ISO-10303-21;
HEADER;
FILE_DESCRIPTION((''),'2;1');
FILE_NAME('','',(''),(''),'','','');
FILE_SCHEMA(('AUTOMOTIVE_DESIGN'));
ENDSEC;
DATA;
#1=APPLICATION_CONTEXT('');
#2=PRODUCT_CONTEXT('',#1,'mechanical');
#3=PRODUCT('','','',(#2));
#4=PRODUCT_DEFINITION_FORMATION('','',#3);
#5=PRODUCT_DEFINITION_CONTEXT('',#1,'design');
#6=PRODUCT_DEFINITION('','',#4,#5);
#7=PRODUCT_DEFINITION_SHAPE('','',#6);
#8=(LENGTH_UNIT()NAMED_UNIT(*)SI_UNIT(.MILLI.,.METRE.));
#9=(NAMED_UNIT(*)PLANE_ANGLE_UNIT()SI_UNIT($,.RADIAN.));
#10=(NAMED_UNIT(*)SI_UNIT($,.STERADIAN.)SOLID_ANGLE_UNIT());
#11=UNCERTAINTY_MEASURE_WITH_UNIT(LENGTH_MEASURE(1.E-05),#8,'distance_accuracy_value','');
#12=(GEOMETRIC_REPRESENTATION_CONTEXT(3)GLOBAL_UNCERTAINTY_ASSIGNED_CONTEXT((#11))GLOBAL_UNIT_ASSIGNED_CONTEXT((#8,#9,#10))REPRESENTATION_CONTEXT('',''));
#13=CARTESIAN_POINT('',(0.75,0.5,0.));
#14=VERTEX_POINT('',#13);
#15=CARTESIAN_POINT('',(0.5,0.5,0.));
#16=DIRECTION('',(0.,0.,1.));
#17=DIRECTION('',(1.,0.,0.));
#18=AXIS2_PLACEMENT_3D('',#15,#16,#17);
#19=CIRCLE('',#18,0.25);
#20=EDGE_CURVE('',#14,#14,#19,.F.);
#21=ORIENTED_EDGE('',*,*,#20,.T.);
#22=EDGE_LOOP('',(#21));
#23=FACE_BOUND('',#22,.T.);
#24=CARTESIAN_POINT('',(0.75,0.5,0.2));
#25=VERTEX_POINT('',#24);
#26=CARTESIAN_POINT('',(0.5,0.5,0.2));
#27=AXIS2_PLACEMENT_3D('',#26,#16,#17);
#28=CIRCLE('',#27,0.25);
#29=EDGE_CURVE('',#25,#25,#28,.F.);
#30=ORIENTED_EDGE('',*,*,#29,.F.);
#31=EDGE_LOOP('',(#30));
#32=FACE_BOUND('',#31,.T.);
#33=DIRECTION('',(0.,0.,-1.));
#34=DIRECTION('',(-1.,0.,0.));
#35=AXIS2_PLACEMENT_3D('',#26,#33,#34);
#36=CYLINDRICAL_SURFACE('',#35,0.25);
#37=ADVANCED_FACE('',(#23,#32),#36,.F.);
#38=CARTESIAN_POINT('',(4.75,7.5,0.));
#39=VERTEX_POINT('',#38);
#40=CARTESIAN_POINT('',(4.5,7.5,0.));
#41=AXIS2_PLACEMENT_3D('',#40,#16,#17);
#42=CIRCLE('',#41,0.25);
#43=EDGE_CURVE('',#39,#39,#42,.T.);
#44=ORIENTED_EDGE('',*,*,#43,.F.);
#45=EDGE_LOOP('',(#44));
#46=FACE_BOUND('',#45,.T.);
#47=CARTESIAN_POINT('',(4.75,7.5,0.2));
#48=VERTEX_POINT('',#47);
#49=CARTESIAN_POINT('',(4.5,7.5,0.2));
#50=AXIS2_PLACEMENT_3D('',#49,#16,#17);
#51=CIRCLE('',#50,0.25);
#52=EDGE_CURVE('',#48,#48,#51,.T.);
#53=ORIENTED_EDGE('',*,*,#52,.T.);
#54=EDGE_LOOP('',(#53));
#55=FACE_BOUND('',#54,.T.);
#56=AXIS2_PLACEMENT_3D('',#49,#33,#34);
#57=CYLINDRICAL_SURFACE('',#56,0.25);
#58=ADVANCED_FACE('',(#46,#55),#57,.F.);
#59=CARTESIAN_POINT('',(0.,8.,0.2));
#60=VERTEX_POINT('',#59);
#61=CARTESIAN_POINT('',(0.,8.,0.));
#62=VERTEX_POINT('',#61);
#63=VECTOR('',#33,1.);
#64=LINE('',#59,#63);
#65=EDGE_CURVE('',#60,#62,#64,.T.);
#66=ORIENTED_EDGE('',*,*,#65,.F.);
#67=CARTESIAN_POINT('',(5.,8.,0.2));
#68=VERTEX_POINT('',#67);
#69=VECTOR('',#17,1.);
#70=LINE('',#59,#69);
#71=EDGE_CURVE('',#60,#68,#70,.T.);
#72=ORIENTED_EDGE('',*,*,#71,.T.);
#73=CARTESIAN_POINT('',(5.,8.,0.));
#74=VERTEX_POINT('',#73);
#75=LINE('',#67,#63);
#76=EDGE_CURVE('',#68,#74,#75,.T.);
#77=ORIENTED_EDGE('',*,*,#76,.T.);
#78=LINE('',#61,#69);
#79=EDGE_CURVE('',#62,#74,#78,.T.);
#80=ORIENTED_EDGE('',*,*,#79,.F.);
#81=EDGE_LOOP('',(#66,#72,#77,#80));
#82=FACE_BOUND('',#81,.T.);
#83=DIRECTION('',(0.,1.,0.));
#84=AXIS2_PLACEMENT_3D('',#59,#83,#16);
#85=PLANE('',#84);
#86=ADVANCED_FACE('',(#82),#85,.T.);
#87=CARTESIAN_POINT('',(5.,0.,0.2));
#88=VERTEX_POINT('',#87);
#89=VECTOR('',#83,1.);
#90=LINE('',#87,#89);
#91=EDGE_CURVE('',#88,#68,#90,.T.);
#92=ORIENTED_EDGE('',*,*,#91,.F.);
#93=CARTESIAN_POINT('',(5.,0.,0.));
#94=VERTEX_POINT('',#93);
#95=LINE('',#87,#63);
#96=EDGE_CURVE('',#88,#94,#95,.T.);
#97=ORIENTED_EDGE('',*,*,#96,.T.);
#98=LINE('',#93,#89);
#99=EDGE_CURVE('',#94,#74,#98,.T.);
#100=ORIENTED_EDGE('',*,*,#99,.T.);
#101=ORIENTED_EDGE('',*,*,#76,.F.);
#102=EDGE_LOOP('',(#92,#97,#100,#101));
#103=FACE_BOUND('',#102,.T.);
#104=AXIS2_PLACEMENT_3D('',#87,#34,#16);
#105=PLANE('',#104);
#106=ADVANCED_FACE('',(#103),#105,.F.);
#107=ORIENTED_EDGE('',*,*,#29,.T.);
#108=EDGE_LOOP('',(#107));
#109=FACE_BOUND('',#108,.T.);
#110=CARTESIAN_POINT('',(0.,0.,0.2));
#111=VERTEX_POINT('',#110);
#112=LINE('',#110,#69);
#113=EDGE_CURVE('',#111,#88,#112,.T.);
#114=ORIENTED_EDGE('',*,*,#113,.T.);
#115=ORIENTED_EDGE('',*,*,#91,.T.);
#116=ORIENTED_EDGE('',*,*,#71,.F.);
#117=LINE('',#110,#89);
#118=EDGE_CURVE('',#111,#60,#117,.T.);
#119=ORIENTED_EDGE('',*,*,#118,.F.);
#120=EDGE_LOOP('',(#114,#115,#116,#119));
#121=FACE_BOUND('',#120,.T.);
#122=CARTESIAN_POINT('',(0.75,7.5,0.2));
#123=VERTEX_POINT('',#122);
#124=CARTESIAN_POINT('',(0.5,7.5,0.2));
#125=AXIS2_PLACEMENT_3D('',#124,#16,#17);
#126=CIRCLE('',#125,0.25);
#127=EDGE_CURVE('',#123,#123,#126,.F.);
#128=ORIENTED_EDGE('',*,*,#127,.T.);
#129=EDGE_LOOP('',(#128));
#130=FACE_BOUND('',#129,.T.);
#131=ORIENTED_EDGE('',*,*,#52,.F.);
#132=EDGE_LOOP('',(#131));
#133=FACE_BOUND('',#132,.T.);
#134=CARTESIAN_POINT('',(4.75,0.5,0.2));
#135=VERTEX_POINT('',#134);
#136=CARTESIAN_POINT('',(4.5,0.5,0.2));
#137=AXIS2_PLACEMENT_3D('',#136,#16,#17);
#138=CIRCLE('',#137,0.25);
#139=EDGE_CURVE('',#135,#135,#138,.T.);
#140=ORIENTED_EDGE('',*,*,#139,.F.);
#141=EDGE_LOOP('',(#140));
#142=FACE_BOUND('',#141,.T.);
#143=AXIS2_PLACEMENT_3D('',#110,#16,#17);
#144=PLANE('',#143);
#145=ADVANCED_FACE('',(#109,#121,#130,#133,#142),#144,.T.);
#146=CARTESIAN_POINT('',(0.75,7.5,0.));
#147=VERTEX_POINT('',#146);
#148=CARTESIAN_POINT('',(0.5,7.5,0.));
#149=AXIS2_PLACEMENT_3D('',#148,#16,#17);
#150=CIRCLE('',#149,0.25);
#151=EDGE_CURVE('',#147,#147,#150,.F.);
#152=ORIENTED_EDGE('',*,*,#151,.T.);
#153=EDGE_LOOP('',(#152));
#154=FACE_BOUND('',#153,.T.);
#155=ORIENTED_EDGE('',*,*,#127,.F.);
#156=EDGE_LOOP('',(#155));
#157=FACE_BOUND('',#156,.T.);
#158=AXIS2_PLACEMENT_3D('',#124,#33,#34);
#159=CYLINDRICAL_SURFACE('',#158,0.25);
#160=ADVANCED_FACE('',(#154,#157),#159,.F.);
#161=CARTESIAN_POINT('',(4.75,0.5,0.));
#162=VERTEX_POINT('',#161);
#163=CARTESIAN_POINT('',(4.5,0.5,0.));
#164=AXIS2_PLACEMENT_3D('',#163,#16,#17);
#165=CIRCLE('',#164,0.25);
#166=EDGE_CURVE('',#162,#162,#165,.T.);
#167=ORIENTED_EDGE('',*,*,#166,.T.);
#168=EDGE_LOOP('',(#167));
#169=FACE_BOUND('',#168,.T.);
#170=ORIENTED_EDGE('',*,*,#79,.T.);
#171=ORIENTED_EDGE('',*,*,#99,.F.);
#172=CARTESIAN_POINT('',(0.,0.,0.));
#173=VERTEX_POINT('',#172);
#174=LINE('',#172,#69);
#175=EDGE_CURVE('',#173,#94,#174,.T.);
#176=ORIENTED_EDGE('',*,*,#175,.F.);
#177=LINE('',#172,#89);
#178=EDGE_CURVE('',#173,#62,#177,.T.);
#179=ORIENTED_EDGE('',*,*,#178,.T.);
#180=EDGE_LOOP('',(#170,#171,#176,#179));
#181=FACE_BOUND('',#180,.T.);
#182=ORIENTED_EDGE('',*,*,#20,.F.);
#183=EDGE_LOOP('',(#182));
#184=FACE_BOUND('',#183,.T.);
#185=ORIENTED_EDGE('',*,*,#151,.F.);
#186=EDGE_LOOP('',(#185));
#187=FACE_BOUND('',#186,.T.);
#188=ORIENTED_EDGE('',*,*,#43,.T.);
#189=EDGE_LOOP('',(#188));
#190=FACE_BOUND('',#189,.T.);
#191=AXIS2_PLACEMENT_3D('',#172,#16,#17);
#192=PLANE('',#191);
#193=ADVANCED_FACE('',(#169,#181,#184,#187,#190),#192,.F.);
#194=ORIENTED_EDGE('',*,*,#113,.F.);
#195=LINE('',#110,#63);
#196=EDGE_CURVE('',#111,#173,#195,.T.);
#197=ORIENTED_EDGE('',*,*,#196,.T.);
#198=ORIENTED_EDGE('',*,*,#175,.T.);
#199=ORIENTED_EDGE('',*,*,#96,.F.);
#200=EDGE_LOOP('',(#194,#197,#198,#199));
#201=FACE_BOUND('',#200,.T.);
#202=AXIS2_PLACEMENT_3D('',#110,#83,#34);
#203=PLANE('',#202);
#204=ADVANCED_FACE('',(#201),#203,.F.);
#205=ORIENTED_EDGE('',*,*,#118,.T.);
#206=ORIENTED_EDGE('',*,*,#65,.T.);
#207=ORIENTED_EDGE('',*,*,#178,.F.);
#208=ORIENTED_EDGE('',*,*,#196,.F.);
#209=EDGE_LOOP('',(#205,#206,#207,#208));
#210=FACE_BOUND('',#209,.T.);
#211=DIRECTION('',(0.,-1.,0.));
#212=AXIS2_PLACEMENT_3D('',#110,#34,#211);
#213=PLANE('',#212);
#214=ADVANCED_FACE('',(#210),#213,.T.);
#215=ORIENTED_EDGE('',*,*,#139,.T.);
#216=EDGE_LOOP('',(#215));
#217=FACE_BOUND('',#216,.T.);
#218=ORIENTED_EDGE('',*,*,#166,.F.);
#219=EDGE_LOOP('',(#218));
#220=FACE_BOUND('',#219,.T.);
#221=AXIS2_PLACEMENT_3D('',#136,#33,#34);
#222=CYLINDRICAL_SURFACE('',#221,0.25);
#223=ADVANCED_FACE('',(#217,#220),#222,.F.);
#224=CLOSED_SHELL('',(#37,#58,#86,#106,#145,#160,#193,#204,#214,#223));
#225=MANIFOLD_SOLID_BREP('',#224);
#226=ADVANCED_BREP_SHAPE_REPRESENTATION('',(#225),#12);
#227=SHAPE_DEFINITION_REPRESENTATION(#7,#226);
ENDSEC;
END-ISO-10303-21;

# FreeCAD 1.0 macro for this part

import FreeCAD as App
import Part
import Sketcher


def add_polygon(sketch, points):
    """Adds a closed chain of lines whose ends are joined by coincident constraints."""
    first, n = sketch.GeometryCount, len(points)
    for a, b in zip(points, points[1:] + points[:1]):
        sketch.addGeometry(Part.LineSegment(App.Vector(*a, 0), App.Vector(*b, 0)), False)
    for i in range(n):
        sketch.addConstraint(Sketcher.Constraint("Coincident", first + i, 2, first + (i + 1) % n, 1))

doc = App.newDocument("Part")
body = doc.addObject("PartDesign::Body", "Body")

# Sketch on XY plane
sketch1 = body.newObject("Sketcher::SketchObject", "Sketch")
sketch1.AttachmentSupport = (doc.getObject("XY_Plane"), [""])
sketch1.MapMode = "FlatFace"
add_polygon(sketch1, [(0, 8), (0, 0), (5, 0), (5, 8)])  # lines 0-3
sketch1.addGeometry(Part.Circle(App.Vector(0.5, 0.5, 0), App.Vector(0, 0, 1), 0.25), False)  # 4
sketch1.addGeometry(Part.Circle(App.Vector(4.5, 0.5, 0), App.Vector(0, 0, 1), 0.25), False)  # 5
sketch1.addGeometry(Part.Circle(App.Vector(0.5, 7.5, 0), App.Vector(0, 0, 1), 0.25), False)  # 6
sketch1.addGeometry(Part.Circle(App.Vector(4.5, 7.5, 0), App.Vector(0, 0, 1), 0.25), False)  # 7
sketch1.addConstraint(Sketcher.Constraint("Vertical", 0))
sketch1.addConstraint(Sketcher.Constraint("Horizontal", 1))
sketch1.addConstraint(Sketcher.Constraint("Vertical", 2))
sketch1.addConstraint(Sketcher.Constraint("Horizontal", 3))
sketch1.addConstraint(Sketcher.Constraint("Coincident", 0, 2, -1, 1))
sketch1.addConstraint(Sketcher.Constraint("Equal", 4, 5))
sketch1.addConstraint(Sketcher.Constraint("Equal", 5, 6))
sketch1.addConstraint(Sketcher.Constraint("Equal", 6, 7))
sketch1.addConstraint(Sketcher.Constraint("Horizontal", 4, 3, 5, 3))
sketch1.addConstraint(Sketcher.Constraint("Horizontal", 6, 3, 7, 3))
sketch1.addConstraint(Sketcher.Constraint("Vertical", 4, 3, 6, 3))
sketch1.addConstraint(Sketcher.Constraint("Vertical", 5, 3, 7, 3))
sketch1.addConstraint(Sketcher.Constraint("Diameter", 4, 0.5))
sketch1.addConstraint(Sketcher.Constraint("DistanceX", 1, 1, 1, 2, 5.0))
sketch1.addConstraint(Sketcher.Constraint("DistanceY", 0, 2, 0, 1, 8.0))
sketch1.addConstraint(Sketcher.Constraint("DistanceX", 4, 3, 5, 3, 4.0))
sketch1.addConstraint(Sketcher.Constraint("DistanceY", 4, 3, 6, 3, 7.0))
sketch1.addConstraint(Sketcher.Constraint("DistanceX", -1, 1, 4, 3, 0.5))
sketch1.addConstraint(Sketcher.Constraint("DistanceY", -1, 1, 4, 3, 0.5))
pad1 = body.newObject("PartDesign::Pad", "Pad")
pad1.Profile = sketch1
pad1.Length = 0.2

doc.recompute()
